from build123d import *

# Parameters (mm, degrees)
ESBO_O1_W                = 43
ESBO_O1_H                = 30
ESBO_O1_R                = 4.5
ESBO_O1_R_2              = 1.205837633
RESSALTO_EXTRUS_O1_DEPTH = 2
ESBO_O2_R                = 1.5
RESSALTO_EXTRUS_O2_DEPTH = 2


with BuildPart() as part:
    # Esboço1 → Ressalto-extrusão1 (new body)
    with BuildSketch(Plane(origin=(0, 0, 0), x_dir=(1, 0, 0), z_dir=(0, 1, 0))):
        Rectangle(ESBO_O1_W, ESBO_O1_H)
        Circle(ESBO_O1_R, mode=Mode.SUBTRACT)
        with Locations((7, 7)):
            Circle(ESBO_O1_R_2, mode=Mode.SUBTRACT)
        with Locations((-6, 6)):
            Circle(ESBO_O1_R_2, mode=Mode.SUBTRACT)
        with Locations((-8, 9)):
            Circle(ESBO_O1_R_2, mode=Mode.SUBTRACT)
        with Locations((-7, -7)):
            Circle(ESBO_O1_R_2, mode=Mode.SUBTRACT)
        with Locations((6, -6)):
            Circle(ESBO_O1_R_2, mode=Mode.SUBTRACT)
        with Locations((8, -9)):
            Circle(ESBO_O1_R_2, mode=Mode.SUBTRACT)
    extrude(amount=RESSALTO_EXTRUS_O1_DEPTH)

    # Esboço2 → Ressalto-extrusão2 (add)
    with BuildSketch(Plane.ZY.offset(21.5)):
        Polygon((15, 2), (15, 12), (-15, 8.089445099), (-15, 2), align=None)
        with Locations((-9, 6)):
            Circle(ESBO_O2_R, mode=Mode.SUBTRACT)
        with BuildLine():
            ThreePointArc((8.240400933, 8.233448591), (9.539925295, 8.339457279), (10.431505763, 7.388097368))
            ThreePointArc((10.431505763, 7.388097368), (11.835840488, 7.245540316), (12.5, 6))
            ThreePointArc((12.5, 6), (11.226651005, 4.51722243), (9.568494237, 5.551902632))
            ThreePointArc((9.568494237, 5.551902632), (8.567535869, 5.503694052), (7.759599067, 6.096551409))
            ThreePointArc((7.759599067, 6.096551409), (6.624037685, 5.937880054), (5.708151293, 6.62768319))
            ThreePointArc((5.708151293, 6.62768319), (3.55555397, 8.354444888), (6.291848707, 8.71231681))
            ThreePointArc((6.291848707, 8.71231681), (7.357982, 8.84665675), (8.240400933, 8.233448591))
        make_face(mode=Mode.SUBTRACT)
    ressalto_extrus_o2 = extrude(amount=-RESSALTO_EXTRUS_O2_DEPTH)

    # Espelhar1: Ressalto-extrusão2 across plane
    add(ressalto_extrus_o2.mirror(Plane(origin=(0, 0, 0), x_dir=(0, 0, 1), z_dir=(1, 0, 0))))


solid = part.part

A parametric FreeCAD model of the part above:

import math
import FreeCAD as App
import Part
import Sketcher

V = App.Vector


def add_polygon(sketch, points):
    """Adds a closed chain of lines whose ends are joined by coincident constraints."""
    first, n = sketch.GeometryCount, len(points)
    for a, b in zip(points, points[1:] + points[:1]):
        sketch.addGeometry(Part.LineSegment(App.Vector(*a, 0), App.Vector(*b, 0)), False)
    for i in range(n):
        sketch.addConstraint(Sketcher.Constraint("Coincident", first + i, 2, first + (i + 1) % n, 1))

doc = App.newDocument("Part")
body = doc.addObject("PartDesign::Body", "Body")

# Sketch on XZ plane
sketch1 = body.newObject("Sketcher::SketchObject", "Sketch")
sketch1.AttachmentSupport = (doc.getObject("XZ_Plane"), [""])
sketch1.MapMode = "FlatFace"
add_polygon(sketch1, [(-21.5, -15), (-21.5, 15), (21.5, 15), (21.5, -15)])  # lines 0-3
sketch1.addGeometry(Part.Circle(V(-7, 7, 0), V(0, 0, 1), 1.2), False)  # 4
sketch1.addGeometry(Part.Circle(V(8, 9, 0), V(0, 0, 1), 1.2), False)  # 5
sketch1.addGeometry(Part.Circle(V(6, 6, 0), V(0, 0, 1), 1.2), False)  # 6
sketch1.addGeometry(Part.Circle(V(-6, -6, 0), V(0, 0, 1), 1.2), False)  # 7
sketch1.addGeometry(Part.Circle(V(-8, -9, 0), V(0, 0, 1), 1.2), False)  # 8
sketch1.addGeometry(Part.Circle(V(0, 0, 0), V(0, 0, 1), 4.5), False)  # 9
sketch1.addGeometry(Part.Circle(V(7, -7, 0), V(0, 0, 1), 1.2), False)  # 10
sketch1.addConstraint([
    Sketcher.Constraint("Vertical", 0),
    Sketcher.Constraint("Horizontal", 1),
    Sketcher.Constraint("Vertical", 2),
    Sketcher.Constraint("Horizontal", 3),
    Sketcher.Constraint("Coincident", 9, 3, -1, 1),
    Sketcher.Constraint("Equal", 4, 5),
    Sketcher.Constraint("Equal", 5, 6),
    Sketcher.Constraint("Equal", 6, 7),
    Sketcher.Constraint("Equal", 7, 8),
    Sketcher.Constraint("Equal", 8, 10),
    Sketcher.Constraint("Symmetric", 6, 3, 7, 3, -1, 1),
    Sketcher.Constraint("Symmetric", 5, 3, 8, 3, -1, 1),
    Sketcher.Constraint("Symmetric", 4, 3, 10, 3, -1, 1),
    Sketcher.Constraint("Symmetric", 0, 2, 2, 2, -1, 1),
    Sketcher.Constraint("Diameter", 9, 9.0),
    Sketcher.Constraint("DistanceX", 1, 1, 1, 2, 43.0),
    Sketcher.Constraint("DistanceY", 0, 1, 0, 2, 30.0),
    Sketcher.Constraint("DistanceX", 4, 3, -1, 1, 7.0),
    Sketcher.Constraint("DistanceY", -1, 1, 4, 3, 7.0),
    Sketcher.Constraint("DistanceX", -1, 1, 5, 3, 8.0),
    Sketcher.Constraint("DistanceY", -1, 1, 5, 3, 9.0),
    Sketcher.Constraint("DistanceX", -1, 1, 6, 3, 6.0),
    Sketcher.Constraint("DistanceY", -1, 1, 6, 3, 6.0),
    Sketcher.Constraint("Diameter", 4, 2.411675),
])
pad1 = body.newObject("PartDesign::Pad", "Pad")
pad1.Profile = sketch1
pad1.Length = 2
pad1.Reversed = True

# Sketch on YZ plane
sketch2 = body.newObject("Sketcher::SketchObject", "Sketch001")
sketch2.AttachmentSupport = (doc.getObject("YZ_Plane"), [""])
sketch2.MapMode = "FlatFace"
sketch2.AttachmentOffset = App.Placement(V(0, 0, -21.5), App.Rotation())
add_polygon(sketch2, [(2, 15), (12, 15), (8.1, -15), (2, -15)])  # lines 0-3
sketch2.addGeometry(Part.Circle(V(6, -9, 0), V(0, 0, 1), 1.5), False)  # 4
sketch2.addGeometry(Part.ArcOfCircle(Part.Circle(V(7.4, 7, 0), V(0, 0, 1), 1.5), math.radians(-28), math.radians(56)), False)  # 5
sketch2.addGeometry(Part.ArcOfCircle(Part.Circle(V(6.9, 9, 0), V(0, 0, 1), 1.5), math.radians(-30), math.radians(73)), False)  # 6
sketch2.addGeometry(Part.ArcOfCircle(Part.Circle(V(6, 11, 0), V(0, 0, 1), 1.5), math.radians(-22), math.radians(90)), False)  # 7
sketch2.addGeometry(Part.ArcOfCircle(Part.Circle(V(6, 11, 0), V(0, 0, 1), 1.5), math.radians(90), math.radians(253)), False)  # 8
sketch2.addGeometry(Part.ArcOfCircle(Part.Circle(V(6.9, 9, 0), V(0, 0, 1), 1.5), math.radians(158), math.radians(236)), False)  # 9
sketch2.addGeometry(Part.ArcOfCircle(Part.Circle(V(7.4, 7, 0), V(0, 0, 1), 1.5), math.radians(150), math.radians(239)), False)  # 10
sketch2.addGeometry(Part.ArcOfCircle(Part.Circle(V(8, 5, 0), V(0, 0, 1), 1.5), math.radians(152), math.radians(419)), False)  # 11
sketch2.addConstraint([
    Sketcher.Constraint("Coincident", 5, 2, 6, 1),
    Sketcher.Constraint("Coincident", 6, 2, 7, 1),
    Sketcher.Constraint("Tangent", 7, 2, 8, 1),
    Sketcher.Constraint("Coincident", 8, 2, 9, 1),
    Sketcher.Constraint("Coincident", 9, 2, 10, 1),
    Sketcher.Constraint("Coincident", 10, 2, 11, 1),
    Sketcher.Constraint("Coincident", 11, 2, 5, 1),
    Sketcher.Constraint("Horizontal", 0),
    Sketcher.Constraint("Horizontal", 2),
    Sketcher.Constraint("Vertical", 3),
    Sketcher.Constraint("Coincident", 9, 3, 6, 3),
    Sketcher.Constraint("Coincident", 10, 3, 5, 3),
    Sketcher.Constraint("Equal", 4, 5),
    Sketcher.Constraint("Equal", 5, 6),
    Sketcher.Constraint("Equal", 6, 7),
    Sketcher.Constraint("Equal", 7, 8),
    Sketcher.Constraint("Equal", 8, 9),
    Sketcher.Constraint("Equal", 9, 10),
    Sketcher.Constraint("Equal", 10, 11),
    Sketcher.Constraint("Vertical", 4, 3, 7, 3),
    Sketcher.Constraint("Vertical", 8, 3, 7, 2),
    Sketcher.Constraint("Diameter", 4, 3.0),
    Sketcher.Constraint("DistanceX", 0, 1, 0, 2, 10.0),
    Sketcher.Constraint("DistanceY", 3, 1, 3, 2, 30.0),
    Sketcher.Constraint("DistanceX", -1, 1, 4, 3, 6.0),
    Sketcher.Constraint("DistanceY", 4, 3, -1, 1, 9.0),
    Sketcher.Constraint("DistanceY", -1, 1, 5, 3, 7.0),
    Sketcher.Constraint("DistanceY", -1, 1, 6, 3, 9.0),
    Sketcher.Constraint("DistanceY", -1, 1, 7, 3, 11.0),
    Sketcher.Constraint("DistanceY", -1, 1, 11, 3, 5.0),
    Sketcher.Constraint("DistanceX", -1, 1, 0, 2, 12.0),
    Sketcher.Constraint("DistanceY", -1, 1, 0, 2, 15.0),
    Sketcher.Constraint("DistanceX", -1, 1, 5, 3, 7.39),
    Sketcher.Constraint("DistanceX", -1, 1, 6, 3, 6.94),
    Sketcher.Constraint("DistanceX", -1, 1, 11, 3, 7.95),
    Sketcher.Constraint("Distance", 1, 30.2538),
])
pad2 = body.newObject("PartDesign::Pad", "Pad001")
pad2.Profile = sketch2
pad2.Length = 2
doc.recompute()

mirrored = body.newObject("PartDesign::Mirrored", "Mirrored")
mirrored.Originals = [pad2]
mirrored.MirrorPlane = (doc.getObject("YZ_Plane"), [""])
body.Tip = mirrored

doc.recompute()
